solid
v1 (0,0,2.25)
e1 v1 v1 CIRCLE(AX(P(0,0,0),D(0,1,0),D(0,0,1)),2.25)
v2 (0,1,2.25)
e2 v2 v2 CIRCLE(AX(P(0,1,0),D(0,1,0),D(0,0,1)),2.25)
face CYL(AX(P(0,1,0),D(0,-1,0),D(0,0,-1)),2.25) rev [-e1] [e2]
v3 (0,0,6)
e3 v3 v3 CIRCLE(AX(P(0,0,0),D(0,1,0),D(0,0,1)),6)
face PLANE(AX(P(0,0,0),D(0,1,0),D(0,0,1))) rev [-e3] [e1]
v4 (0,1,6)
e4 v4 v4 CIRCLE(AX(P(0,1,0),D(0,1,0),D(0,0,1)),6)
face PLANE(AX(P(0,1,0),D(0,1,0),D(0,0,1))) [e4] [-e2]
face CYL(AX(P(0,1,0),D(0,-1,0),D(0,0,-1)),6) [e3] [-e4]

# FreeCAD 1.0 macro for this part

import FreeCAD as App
import Part
import Sketcher

V = App.Vector

doc = App.newDocument("Part")
body = doc.addObject("PartDesign::Body", "Body")

sketch1 = body.newObject("Sketcher::SketchObject", "Sketch")
sketch1.AttachmentSupport = (doc.getObject("XZ_Plane"), [""])
sketch1.MapMode = "FlatFace"
sketch1.addGeometry([
    Part.Circle(V(0, 0, 0), V(0, 0, 1), 6),
    Part.Circle(V(0, 0, 0), V(0, 0, 1), 2.2),
], False)
sketch1.addConstraint([
    Sketcher.Constraint("Coincident", 0, 3, -1, 1),
    Sketcher.Constraint("Coincident", 1, 3, -1, 1),
    Sketcher.Constraint("Diameter", 0, 12.0),
    Sketcher.Constraint("Diameter", 1, 4.5),
])
pad1 = body.newObject("PartDesign::Pad", "Pad")
pad1.Profile = sketch1
pad1.Length = 1
pad1.Reversed = True

doc.recompute()
